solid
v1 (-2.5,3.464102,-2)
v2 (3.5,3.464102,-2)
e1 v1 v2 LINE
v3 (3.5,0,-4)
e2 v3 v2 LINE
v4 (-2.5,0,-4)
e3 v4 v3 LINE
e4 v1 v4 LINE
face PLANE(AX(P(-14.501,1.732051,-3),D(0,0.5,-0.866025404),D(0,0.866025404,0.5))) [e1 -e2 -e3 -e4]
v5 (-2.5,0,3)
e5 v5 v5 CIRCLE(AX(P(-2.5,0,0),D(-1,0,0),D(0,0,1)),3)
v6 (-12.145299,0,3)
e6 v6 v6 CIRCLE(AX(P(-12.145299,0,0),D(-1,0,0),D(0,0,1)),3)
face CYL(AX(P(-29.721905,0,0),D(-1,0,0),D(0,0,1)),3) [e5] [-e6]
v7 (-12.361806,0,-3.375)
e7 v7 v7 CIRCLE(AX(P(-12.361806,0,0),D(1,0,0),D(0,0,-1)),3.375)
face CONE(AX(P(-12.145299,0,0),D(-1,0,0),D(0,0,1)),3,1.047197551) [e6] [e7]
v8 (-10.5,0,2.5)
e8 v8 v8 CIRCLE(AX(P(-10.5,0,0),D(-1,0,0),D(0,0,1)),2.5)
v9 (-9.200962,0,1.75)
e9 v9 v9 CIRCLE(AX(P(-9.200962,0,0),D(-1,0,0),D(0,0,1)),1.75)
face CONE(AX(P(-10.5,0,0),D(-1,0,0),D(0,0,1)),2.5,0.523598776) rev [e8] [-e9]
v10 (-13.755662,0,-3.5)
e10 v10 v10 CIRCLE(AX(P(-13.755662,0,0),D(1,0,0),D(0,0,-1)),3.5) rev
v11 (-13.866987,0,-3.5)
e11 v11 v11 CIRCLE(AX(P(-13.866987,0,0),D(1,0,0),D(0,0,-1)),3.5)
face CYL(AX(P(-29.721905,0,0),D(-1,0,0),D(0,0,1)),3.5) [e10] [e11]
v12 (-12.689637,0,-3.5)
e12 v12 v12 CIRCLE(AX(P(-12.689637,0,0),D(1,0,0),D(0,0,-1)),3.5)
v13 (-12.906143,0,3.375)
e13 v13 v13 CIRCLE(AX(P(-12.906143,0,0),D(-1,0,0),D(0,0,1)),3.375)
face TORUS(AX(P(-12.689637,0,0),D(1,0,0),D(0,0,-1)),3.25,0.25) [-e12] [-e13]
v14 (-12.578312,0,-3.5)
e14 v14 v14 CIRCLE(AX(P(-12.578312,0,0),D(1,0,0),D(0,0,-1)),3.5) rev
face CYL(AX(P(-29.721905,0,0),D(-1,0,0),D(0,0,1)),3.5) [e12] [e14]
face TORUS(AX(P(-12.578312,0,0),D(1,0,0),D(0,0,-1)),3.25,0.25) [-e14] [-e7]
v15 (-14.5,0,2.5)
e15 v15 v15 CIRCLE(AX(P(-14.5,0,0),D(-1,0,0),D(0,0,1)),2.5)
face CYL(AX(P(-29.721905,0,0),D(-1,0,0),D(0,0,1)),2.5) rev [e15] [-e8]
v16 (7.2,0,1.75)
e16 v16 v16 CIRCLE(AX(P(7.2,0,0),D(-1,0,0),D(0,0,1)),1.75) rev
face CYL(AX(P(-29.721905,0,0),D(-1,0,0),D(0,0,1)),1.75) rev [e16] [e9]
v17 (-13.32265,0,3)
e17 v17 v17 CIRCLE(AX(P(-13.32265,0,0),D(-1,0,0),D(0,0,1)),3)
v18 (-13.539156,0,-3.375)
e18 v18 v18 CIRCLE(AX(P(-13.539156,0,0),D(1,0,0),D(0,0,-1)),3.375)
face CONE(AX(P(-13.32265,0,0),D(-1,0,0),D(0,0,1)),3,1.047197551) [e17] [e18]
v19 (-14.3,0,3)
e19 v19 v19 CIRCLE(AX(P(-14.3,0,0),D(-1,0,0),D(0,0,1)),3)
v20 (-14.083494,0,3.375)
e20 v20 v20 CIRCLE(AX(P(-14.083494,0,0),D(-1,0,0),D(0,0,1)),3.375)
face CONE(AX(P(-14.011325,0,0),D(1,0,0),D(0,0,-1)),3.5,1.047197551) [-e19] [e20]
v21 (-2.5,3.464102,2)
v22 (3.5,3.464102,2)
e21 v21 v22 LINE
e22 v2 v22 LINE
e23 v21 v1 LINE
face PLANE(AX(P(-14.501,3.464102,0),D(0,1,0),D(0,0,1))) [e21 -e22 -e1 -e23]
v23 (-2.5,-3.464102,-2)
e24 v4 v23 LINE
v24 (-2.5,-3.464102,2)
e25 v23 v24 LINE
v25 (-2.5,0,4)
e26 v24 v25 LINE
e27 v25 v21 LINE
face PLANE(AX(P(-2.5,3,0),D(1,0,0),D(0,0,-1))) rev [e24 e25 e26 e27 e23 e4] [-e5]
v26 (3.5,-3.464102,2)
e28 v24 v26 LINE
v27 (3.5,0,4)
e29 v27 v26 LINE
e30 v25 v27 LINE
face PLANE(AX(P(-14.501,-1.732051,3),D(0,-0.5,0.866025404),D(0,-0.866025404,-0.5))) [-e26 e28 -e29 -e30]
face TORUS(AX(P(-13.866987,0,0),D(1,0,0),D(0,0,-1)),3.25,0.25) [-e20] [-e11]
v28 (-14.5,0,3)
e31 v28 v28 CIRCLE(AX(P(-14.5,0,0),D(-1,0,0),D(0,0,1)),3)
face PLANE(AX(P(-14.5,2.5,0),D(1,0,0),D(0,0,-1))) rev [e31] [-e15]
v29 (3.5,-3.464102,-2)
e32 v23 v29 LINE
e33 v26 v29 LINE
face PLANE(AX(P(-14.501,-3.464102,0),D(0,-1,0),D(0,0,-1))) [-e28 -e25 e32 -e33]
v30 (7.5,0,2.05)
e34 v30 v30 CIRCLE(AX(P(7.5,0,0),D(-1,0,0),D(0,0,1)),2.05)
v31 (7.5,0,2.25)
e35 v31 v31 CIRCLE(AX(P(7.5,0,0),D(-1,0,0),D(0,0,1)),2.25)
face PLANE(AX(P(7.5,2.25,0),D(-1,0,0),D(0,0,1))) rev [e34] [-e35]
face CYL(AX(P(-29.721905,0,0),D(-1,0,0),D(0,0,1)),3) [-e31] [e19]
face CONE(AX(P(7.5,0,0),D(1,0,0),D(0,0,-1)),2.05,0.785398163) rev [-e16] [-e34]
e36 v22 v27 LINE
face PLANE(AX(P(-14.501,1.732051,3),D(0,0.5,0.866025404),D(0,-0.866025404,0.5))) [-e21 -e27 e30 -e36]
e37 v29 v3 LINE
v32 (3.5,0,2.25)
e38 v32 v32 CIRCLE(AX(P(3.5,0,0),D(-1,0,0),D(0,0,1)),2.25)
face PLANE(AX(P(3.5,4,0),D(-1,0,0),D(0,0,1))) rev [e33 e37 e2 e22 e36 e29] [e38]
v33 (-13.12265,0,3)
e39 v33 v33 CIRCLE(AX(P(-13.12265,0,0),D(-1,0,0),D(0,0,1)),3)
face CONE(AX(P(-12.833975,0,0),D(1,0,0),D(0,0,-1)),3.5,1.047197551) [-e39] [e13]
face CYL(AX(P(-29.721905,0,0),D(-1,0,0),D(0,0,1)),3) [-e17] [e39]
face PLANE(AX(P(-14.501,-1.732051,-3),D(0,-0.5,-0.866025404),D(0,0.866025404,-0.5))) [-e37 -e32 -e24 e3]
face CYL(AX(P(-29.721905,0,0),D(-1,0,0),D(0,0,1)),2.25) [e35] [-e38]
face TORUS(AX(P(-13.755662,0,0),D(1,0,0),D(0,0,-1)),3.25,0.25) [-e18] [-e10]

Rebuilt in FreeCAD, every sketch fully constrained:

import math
import FreeCAD as App
import Part
import Sketcher
from FreeCAD import Vector
Q = App.Units.Quantity


def edges_at(feature, points):
    """Names of the edges that pass closest to the given points."""
    edges = feature.Shape.Edges
    near = lambda p: min(range(len(edges)), key=lambda i: edges[i].distToShape(Part.Vertex(*p))[0])
    return sorted({f"Edge{near(p) + 1}" for p in points})


def add_polygon(sketch, points):
    """Adds a closed chain of lines whose ends are joined by coincident constraints."""
    first, n = sketch.GeometryCount, len(points)
    for a, b in zip(points, points[1:] + points[:1]):
        sketch.addGeometry(Part.LineSegment(App.Vector(*a, 0), App.Vector(*b, 0)), False)
    for i in range(n):
        sketch.addConstraint(Sketcher.Constraint("Coincident", first + i, 2, first + (i + 1) % n, 1))

doc = App.newDocument("Part")
body = doc.addObject("PartDesign::Body", "Body")

sketch1 = body.newObject("Sketcher::SketchObject", "Sketch")
sketch1.AttachmentSupport = (doc.getObject("XY_Plane"), [""])
sketch1.MapMode = "FlatFace"
add_polygon(sketch1, [(-13.12, 3), (-13.32, 3), (-13.61, 3.5), (-14.01, 3.5), (-14.3, 3), (-14.5, 3), (-14.5, 2.5), (-10.5, 2.5), (-9.2, 1.75), (7.5, 1.75), (7.5, 2.25), (3.5, 2.25), (3.5, 4), (-2.5, 4), (-2.5, 3), (-12.15, 3), (-12.43, 3.5), (-12.83, 3.5)])
sketch1.addConstraint([
    Sketcher.Constraint("Horizontal", 0),
    Sketcher.Constraint("Horizontal", 2),
    Sketcher.Constraint("Horizontal", 4),
    Sketcher.Constraint("Vertical", 5),
    Sketcher.Constraint("Horizontal", 6),
    Sketcher.Constraint("Horizontal", 8),
    Sketcher.Constraint("Vertical", 9),
    Sketcher.Constraint("Horizontal", 10),
    Sketcher.Constraint("Vertical", 11),
    Sketcher.Constraint("Horizontal", 12),
    Sketcher.Constraint("Vertical", 13),
    Sketcher.Constraint("Horizontal", 14),
    Sketcher.Constraint("Horizontal", 16),
    Sketcher.Constraint("Perpendicular", 3, 7),
    Sketcher.Constraint("Parallel", 1, 15),
    Sketcher.Constraint("Perpendicular", 7, 17),
    Sketcher.Constraint("Horizontal", 0, 2, 3, 2),
    Sketcher.Constraint("Horizontal", 4, 2, 13, 2),
    Sketcher.Constraint("Horizontal", 2, 2, 15, 2),
    Sketcher.Constraint("Equal", 0, 4),
    Sketcher.Constraint("Equal", 6, 10),
    Sketcher.Constraint("Equal", 2, 16),
    Sketcher.Constraint("Equal", 5, 9),
    Sketcher.Constraint("Equal", 1, 3),
    Sketcher.Constraint("DistanceX", 6, 1, 6, 2, 4.0),
    Sketcher.Constraint("DistanceX", 12, 2, 12, 1, 6.0),
    Sketcher.Constraint("DistanceY", 13, 2, 13, 1, 1.0),
    Sketcher.Constraint("Angle", 1, Q("120 deg")),
    Sketcher.Constraint("DistanceX", 0, 2, 0, 1, 0.2),
    Sketcher.Constraint("DistanceX", 2, 2, 2, 1, 0.4),
    Sketcher.Constraint("DistanceY", 5, 2, 5, 1, 0.5),
    Sketcher.Constraint("DistanceY", -1, 1, 0, 2, 3.0),
    Sketcher.Constraint("DistanceY", 5, 2, 2, 2, 1.0),
    Sketcher.Constraint("DistanceX", 6, 2, 8, 2, 18.0),
    Sketcher.Constraint("Distance", 7, 1.5),
    Sketcher.Constraint("DistanceX", 3, 2, -1, 1, 14.3),
])
revolution = body.newObject("PartDesign::Revolution", "Revolution")
revolution.Profile = sketch1
revolution.ReferenceAxis = (sketch1, ["H_Axis"])
revolution.Angle = 360

sketch2 = body.newObject("Sketcher::SketchObject", "Sketch001")
sketch2.AttachmentSupport = (doc.getObject("YZ_Plane"), [""])
sketch2.MapMode = "FlatFace"
sketch2.AttachmentOffset = App.Placement(Vector(0, 0, 3.5), App.Rotation())
sketch2.addGeometry([
    Part.LineSegment(Vector(3.5, 2, 0), Vector(3.5, -2, 0)),
    Part.ArcOfCircle(Part.Circle(Vector(0, 0, 0), Vector(0, 0, 1), 4), math.radians(-30), math.radians(30)),
], False)
sketch2.addConstraint([
    Sketcher.Constraint("Coincident", 0, 1, 1, 2),
    Sketcher.Constraint("Coincident", 1, 1, 0, 2),
    Sketcher.Constraint("Vertical", 0),
    Sketcher.Constraint("Coincident", 1, 3, -1, 1),
    Sketcher.Constraint("Radius", 1, 4.0),
    Sketcher.Constraint("DistanceY", 0, 2, 0, 1, 4.0),
])
pocket1 = body.newObject("PartDesign::Pocket", "Pocket")
pocket1.Profile = sketch2
pocket1.Type = "UpToFirst"

sketch3 = body.newObject("Sketcher::SketchObject", "Sketch002")
sketch3.AttachmentSupport = (doc.getObject("YZ_Plane"), [""])
sketch3.MapMode = "FlatFace"
sketch3.AttachmentOffset = App.Placement(Vector(0, 0, 3.5), App.Rotation())
sketch3.addGeometry([
    Part.LineSegment(Vector(0, 4, 0), Vector(3.5, 2, 0)),
    Part.ArcOfCircle(Part.Circle(Vector(0, 0, 0), Vector(0, 0, 1), 4), math.radians(30), math.radians(90)),
], False)
sketch3.addConstraint([
    Sketcher.Constraint("Coincident", 0, 1, 1, 2),
    Sketcher.Constraint("Coincident", 1, 1, 0, 2),
    Sketcher.Constraint("Coincident", 1, 3, -1, 1),
    Sketcher.Constraint("PointOnObject", 0, 1, -2),
    Sketcher.Constraint("Radius", 1, 4.0),
    Sketcher.Constraint("Angle", 0, Q("-30 deg")),
])
pocket2 = body.newObject("PartDesign::Pocket", "Pocket001")
pocket2.Profile = sketch3
pocket2.Type = "UpToFirst"

sketch4 = body.newObject("Sketcher::SketchObject", "Sketch003")
sketch4.AttachmentSupport = (doc.getObject("YZ_Plane"), [""])
sketch4.MapMode = "FlatFace"
sketch4.AttachmentOffset = App.Placement(Vector(0, 0, 3.5), App.Rotation())
sketch4.addGeometry([
    Part.ArcOfCircle(Part.Circle(Vector(0, 0, 0), Vector(0, 0, 1), 4), math.radians(90), math.radians(150)),
    Part.LineSegment(Vector(-3.5, 2, 0), Vector(0, 4, 0)),
], False)
sketch4.addConstraint([
    Sketcher.Constraint("Coincident", 0, 1, 1, 2),
    Sketcher.Constraint("Coincident", 1, 1, 0, 2),
    Sketcher.Constraint("Coincident", 0, 3, -1, 1),
    Sketcher.Constraint("PointOnObject", 0, 1, -2),
    Sketcher.Constraint("Radius", 0, 4.0),
    Sketcher.Constraint("Angle", 1, Q("30 deg")),
])
pocket3 = body.newObject("PartDesign::Pocket", "Pocket002")
pocket3.Profile = sketch4
pocket3.Type = "UpToFirst"

sketch5 = body.newObject("Sketcher::SketchObject", "Sketch004")
sketch5.AttachmentSupport = (doc.getObject("YZ_Plane"), [""])
sketch5.MapMode = "FlatFace"
sketch5.AttachmentOffset = App.Placement(Vector(0, 0, 3.5), App.Rotation())
sketch5.addGeometry([
    Part.ArcOfCircle(Part.Circle(Vector(0, 0, 0), Vector(0, 0, 1), 4), math.radians(150), math.radians(210)),
    Part.LineSegment(Vector(-3.5, -2, 0), Vector(-3.5, 2, 0)),
], False)
sketch5.addConstraint([
    Sketcher.Constraint("Coincident", 0, 1, 1, 2),
    Sketcher.Constraint("Coincident", 1, 1, 0, 2),
    Sketcher.Constraint("Vertical", 1),
    Sketcher.Constraint("Coincident", 0, 3, -1, 1),
    Sketcher.Constraint("Radius", 0, 4.0),
    Sketcher.Constraint("DistanceY", 1, 1, 1, 2, 4.0),
])
pocket4 = body.newObject("PartDesign::Pocket", "Pocket003")
pocket4.Profile = sketch5
pocket4.Type = "UpToFirst"

sketch6 = body.newObject("Sketcher::SketchObject", "Sketch005")
sketch6.AttachmentSupport = (doc.getObject("YZ_Plane"), [""])
sketch6.MapMode = "FlatFace"
sketch6.AttachmentOffset = App.Placement(Vector(0, 0, 3.5), App.Rotation())
sketch6.addGeometry([
    Part.ArcOfCircle(Part.Circle(Vector(0, 0, 0), Vector(0, 0, 1), 4), math.radians(-150), math.radians(-90)),
    Part.LineSegment(Vector(0, -4, 0), Vector(-3.5, -2, 0)),
], False)
sketch6.addConstraint([
    Sketcher.Constraint("Coincident", 0, 1, 1, 2),
    Sketcher.Constraint("Coincident", 1, 1, 0, 2),
    Sketcher.Constraint("Coincident", 0, 3, -1, 1),
    Sketcher.Constraint("PointOnObject", 1, 1, -2),
    Sketcher.Constraint("Radius", 0, 4.0),
    Sketcher.Constraint("Angle", 1, Q("150 deg")),
])
pocket5 = body.newObject("PartDesign::Pocket", "Pocket004")
pocket5.Profile = sketch6
pocket5.Type = "UpToFirst"

sketch7 = body.newObject("Sketcher::SketchObject", "Sketch006")
sketch7.AttachmentSupport = (doc.getObject("YZ_Plane"), [""])
sketch7.MapMode = "FlatFace"
sketch7.AttachmentOffset = App.Placement(Vector(0, 0, 3.5), App.Rotation())
sketch7.addGeometry([
    Part.LineSegment(Vector(3.5, -2, 0), Vector(0, -4, 0)),
    Part.ArcOfCircle(Part.Circle(Vector(0, 0, 0), Vector(0, 0, 1), 4), math.radians(-90), math.radians(-30)),
], False)
sketch7.addConstraint([
    Sketcher.Constraint("Coincident", 0, 1, 1, 2),
    Sketcher.Constraint("Coincident", 1, 1, 0, 2),
    Sketcher.Constraint("Coincident", 1, 3, -1, 1),
    Sketcher.Constraint("PointOnObject", 1, 1, -2),
    Sketcher.Constraint("Radius", 1, 4.0),
    Sketcher.Constraint("Angle", 0, Q("-150 deg")),
])
pocket6 = body.newObject("PartDesign::Pocket", "Pocket005")
pocket6.Profile = sketch7
pocket6.Type = "UpToFirst"
doc.recompute()

fillet = body.newObject("PartDesign::Fillet", "Fillet")
fillet.Base = (pocket6, edges_at(pocket6, [(-14.011, -3.5, 0), (-13.611, -3.5, 0)]))
fillet.Radius = 0.25
doc.recompute()

fillet2 = body.newObject("PartDesign::Fillet", "Fillet001")
fillet2.Base = (fillet, edges_at(fillet, [(-12.834, -3.5, 0), (-12.434, -3.5, 0)]))
fillet2.Radius = 0.25
doc.recompute()

chamfer = body.newObject("PartDesign::Chamfer", "Chamfer")
chamfer.Base = (fillet2, edges_at(fillet2, [(7.5, -1.75, 0)]))
chamfer.Size = 0.3

doc.recompute()
